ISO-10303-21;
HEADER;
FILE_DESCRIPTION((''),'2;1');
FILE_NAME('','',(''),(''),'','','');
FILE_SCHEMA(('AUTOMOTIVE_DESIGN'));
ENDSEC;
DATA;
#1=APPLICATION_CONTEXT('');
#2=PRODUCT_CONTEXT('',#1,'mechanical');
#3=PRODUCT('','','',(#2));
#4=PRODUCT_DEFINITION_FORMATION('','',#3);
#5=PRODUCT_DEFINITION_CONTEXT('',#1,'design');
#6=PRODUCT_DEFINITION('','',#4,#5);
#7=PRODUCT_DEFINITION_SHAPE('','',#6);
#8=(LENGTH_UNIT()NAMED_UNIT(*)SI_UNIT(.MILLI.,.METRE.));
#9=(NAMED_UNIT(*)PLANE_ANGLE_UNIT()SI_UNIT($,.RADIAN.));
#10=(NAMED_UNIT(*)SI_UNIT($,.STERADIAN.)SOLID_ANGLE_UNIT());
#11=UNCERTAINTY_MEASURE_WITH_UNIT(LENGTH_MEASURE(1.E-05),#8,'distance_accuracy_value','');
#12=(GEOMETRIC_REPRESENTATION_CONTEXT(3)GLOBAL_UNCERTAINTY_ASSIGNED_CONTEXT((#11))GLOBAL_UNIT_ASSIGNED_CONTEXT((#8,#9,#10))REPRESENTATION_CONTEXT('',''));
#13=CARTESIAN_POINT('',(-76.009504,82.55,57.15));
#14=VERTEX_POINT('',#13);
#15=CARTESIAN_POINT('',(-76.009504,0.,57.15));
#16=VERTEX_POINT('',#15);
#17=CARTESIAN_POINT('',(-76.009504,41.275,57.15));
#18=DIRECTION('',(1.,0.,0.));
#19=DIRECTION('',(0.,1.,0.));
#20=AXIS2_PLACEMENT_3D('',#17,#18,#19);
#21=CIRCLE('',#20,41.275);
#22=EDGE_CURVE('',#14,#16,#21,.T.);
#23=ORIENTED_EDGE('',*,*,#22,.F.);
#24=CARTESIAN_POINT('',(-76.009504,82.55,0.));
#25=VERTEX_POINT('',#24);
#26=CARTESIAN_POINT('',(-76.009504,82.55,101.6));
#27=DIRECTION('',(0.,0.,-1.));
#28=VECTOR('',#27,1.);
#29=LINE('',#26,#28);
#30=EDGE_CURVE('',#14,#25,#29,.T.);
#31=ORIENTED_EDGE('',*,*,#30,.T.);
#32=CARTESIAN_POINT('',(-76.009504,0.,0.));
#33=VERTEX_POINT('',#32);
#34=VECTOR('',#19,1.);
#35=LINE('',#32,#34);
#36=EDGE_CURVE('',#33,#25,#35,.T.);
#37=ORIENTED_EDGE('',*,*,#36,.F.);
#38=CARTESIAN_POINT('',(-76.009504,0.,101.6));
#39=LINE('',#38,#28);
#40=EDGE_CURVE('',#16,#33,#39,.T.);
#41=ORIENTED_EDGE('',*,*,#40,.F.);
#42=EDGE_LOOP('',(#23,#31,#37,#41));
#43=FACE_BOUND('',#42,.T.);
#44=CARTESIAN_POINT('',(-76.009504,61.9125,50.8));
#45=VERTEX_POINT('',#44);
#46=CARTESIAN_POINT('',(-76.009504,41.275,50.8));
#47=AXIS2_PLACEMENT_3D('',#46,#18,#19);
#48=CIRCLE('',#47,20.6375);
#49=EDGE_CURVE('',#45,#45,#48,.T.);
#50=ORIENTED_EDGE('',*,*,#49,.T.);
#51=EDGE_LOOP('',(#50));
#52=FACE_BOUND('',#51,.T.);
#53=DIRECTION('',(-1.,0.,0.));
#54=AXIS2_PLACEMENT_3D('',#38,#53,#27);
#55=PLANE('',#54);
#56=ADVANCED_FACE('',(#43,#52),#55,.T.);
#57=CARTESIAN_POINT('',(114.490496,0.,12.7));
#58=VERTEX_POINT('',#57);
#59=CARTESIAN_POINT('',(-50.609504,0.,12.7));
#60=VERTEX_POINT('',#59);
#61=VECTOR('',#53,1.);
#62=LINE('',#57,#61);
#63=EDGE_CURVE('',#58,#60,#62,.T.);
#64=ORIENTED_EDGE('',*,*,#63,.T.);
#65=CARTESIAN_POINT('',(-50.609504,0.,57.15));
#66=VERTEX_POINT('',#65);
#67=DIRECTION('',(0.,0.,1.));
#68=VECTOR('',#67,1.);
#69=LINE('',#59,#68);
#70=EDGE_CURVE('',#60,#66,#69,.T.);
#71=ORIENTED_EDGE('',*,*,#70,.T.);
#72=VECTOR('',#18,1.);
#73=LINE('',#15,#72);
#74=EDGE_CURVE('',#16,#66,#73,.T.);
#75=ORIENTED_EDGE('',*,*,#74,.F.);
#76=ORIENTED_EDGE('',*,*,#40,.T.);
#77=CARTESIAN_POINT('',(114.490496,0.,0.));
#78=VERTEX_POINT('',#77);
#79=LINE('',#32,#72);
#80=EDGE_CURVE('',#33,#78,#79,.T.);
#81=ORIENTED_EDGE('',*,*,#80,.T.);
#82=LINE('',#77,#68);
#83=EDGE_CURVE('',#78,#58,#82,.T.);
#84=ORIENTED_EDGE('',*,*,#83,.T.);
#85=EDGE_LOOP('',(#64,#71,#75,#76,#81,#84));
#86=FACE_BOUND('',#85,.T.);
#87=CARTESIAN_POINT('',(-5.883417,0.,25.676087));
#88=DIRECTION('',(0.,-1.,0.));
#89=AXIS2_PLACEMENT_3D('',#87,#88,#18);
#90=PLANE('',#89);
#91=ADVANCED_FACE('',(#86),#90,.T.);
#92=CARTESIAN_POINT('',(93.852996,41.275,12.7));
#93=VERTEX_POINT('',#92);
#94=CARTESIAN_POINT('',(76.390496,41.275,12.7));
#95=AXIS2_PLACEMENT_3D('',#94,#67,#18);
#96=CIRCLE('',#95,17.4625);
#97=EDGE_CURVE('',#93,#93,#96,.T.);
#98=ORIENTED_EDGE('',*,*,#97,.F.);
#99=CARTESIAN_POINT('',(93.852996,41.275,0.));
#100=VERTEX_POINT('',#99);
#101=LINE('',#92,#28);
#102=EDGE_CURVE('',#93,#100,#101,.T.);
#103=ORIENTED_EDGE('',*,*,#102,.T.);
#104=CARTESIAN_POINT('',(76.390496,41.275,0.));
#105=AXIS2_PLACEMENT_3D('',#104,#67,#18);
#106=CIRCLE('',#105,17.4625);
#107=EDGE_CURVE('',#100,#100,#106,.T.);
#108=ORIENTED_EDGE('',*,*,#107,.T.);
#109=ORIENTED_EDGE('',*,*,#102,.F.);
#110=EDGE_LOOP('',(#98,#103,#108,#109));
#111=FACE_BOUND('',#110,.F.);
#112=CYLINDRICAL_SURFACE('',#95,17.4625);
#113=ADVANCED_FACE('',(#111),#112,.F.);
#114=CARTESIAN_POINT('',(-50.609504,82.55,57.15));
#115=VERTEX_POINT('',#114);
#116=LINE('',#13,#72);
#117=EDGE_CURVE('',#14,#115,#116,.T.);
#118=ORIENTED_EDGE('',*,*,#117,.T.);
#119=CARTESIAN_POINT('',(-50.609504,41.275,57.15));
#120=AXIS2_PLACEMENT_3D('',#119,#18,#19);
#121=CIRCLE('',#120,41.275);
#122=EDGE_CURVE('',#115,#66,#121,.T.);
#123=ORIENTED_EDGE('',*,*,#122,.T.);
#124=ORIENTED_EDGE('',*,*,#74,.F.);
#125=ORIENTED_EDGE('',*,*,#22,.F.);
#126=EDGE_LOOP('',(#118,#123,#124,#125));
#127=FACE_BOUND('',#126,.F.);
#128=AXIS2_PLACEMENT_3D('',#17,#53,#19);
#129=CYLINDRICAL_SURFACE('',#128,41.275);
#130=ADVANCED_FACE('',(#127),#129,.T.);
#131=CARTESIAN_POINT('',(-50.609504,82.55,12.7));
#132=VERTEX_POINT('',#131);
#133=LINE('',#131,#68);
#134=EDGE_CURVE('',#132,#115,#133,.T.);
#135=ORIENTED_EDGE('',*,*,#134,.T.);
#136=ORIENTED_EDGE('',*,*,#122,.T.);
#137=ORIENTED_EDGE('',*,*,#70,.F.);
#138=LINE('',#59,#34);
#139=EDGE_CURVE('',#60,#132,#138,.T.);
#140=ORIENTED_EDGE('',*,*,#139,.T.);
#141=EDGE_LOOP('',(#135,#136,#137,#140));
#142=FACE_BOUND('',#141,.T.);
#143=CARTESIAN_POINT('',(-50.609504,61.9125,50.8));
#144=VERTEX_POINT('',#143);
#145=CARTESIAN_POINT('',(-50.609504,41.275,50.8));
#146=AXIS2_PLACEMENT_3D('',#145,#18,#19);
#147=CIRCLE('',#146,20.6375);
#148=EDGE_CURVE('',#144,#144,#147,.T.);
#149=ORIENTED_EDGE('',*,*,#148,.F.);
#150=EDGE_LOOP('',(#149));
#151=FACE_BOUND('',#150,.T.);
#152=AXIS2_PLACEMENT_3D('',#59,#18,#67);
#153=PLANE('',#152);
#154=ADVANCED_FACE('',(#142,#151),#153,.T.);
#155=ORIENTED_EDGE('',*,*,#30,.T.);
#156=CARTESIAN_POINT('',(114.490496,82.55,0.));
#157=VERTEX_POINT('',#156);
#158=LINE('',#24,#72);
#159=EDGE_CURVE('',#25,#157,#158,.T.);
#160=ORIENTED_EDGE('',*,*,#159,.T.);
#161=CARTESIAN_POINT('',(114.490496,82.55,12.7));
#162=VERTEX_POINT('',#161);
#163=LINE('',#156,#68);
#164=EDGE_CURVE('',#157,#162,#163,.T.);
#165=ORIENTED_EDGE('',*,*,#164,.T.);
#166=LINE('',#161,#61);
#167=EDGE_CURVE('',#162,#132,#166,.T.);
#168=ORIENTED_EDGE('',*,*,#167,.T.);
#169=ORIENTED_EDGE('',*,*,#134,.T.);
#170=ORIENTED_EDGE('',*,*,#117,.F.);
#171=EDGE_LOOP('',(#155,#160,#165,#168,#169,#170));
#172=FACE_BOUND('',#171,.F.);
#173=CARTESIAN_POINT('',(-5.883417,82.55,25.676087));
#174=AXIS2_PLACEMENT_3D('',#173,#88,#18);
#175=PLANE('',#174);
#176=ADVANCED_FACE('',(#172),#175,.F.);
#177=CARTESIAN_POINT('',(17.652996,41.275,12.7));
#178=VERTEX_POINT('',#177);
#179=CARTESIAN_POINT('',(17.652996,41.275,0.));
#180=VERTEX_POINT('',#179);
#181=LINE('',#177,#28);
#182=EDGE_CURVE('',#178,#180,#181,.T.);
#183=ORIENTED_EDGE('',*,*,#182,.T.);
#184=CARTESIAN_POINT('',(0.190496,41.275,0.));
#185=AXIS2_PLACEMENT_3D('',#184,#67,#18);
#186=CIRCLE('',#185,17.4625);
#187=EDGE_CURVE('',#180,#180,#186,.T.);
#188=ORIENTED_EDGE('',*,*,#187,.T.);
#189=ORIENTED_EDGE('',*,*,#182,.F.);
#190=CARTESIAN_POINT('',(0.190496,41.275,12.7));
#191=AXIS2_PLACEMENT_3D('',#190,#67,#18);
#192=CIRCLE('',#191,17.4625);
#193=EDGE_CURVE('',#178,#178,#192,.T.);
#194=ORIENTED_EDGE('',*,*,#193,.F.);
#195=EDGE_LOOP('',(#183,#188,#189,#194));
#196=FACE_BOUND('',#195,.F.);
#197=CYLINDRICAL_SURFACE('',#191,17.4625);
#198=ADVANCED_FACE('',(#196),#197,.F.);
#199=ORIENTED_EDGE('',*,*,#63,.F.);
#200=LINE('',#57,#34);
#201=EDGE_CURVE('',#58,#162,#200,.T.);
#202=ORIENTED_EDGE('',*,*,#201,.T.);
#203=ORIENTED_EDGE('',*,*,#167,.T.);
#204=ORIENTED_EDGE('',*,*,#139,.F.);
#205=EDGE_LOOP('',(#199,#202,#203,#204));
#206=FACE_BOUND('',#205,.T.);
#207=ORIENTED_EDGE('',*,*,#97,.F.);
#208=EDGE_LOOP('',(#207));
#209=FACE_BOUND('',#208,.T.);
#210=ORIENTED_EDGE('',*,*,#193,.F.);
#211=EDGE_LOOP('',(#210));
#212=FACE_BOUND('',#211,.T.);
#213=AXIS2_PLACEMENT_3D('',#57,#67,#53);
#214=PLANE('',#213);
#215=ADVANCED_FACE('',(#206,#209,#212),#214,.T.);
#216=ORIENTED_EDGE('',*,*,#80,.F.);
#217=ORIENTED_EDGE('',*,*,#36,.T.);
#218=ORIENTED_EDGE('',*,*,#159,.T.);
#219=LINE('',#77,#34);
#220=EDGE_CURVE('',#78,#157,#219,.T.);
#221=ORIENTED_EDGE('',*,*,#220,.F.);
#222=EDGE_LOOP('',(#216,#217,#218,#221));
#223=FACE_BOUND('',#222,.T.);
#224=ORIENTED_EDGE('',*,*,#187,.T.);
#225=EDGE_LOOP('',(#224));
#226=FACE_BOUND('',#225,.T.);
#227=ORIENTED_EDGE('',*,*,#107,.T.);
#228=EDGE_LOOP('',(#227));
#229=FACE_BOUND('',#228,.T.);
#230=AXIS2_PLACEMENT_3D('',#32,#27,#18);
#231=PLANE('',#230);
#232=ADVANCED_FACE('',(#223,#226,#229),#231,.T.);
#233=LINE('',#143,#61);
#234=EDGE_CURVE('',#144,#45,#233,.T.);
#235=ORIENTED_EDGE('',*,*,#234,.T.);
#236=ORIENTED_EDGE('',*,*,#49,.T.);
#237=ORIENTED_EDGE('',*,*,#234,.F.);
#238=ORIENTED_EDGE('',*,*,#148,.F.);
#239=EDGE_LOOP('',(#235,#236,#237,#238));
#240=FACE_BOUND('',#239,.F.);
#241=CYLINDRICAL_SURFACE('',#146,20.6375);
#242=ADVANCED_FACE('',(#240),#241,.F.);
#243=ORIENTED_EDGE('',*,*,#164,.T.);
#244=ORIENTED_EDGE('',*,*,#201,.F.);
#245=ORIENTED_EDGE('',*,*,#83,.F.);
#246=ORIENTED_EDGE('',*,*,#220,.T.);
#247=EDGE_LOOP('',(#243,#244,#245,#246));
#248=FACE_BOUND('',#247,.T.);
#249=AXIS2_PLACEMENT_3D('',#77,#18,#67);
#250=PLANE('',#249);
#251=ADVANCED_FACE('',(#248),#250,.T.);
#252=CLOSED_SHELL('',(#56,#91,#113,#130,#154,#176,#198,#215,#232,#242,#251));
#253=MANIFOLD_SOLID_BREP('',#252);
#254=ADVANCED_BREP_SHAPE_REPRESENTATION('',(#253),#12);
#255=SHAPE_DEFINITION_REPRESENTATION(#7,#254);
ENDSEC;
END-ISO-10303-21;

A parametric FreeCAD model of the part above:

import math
import FreeCAD as App
import Part
import Sketcher
from FreeCAD import Vector
Q = App.Units.Quantity

doc = App.newDocument("Part")
params = doc.addObject("Spreadsheet::Sheet", "Params")
for row, (alias, value) in enumerate([
    ("sketch1_width", "1 in"),
    ("sketch1_height", "4 in"),
    ("sketch1_width2", "7.5 in"),
    ("sketch1_height2", "0.5 in"),
    ("pad1_length", "3.25 in"),
    ("sketch2_diameter", "1.375 in"),
    ("pocket1_length", "1 in"),
    ("sketch3_radius", "1.625 in"),
    ("sketch3_height", "1.75 in"),
    ("pocket2_length", "1 in"),
    ("sketch4_diameter", "1.625 in"),
    ("pocket3_length", "2 in"),
], start=1):
    params.set(f"A{row}", alias)
    params.set(f"B{row}", "=" + value)
    params.setAlias(f"B{row}", alias)

body = doc.addObject("PartDesign::Body", "Body")

# Sketch on XZ plane
sketch1 = body.newObject("Sketcher::SketchObject", "Sketch")
sketch1.AttachmentSupport = (doc.getObject("XZ_Plane"), [""])
sketch1.MapMode = "FlatFace"
sketch1.addGeometry([
    Part.LineSegment(Vector(-76.009504, 101.6, 0), Vector(-76.009504, 0, 0)),  # 0
    Part.LineSegment(Vector(-76.009504, 0, 0), Vector(114.490496, 0, 0)),  # 1
    Part.LineSegment(Vector(114.490496, 0, 0), Vector(114.490496, 12.7, 0)),  # 2
    Part.LineSegment(Vector(114.490496, 12.7, 0), Vector(-50.609504, 12.7, 0)),  # 3
    Part.LineSegment(Vector(-50.609504, 12.7, 0), Vector(-50.609504, 101.6, 0)),  # 4
    Part.LineSegment(Vector(-50.609504, 101.6, 0), Vector(-76.009504, 101.6, 0)),  # 5
], False)
sketch1.addConstraint([
    Sketcher.Constraint("Coincident", 0, 2, 1, 1),
    Sketcher.Constraint("Coincident", 1, 2, 2, 1),
    Sketcher.Constraint("Coincident", 2, 2, 3, 1),
    Sketcher.Constraint("Coincident", 3, 2, 4, 1),
    Sketcher.Constraint("Coincident", 4, 2, 5, 1),
    Sketcher.Constraint("Coincident", 5, 2, 0, 1),
    Sketcher.Constraint("Vertical", 0),
    Sketcher.Constraint("Horizontal", 1),
    Sketcher.Constraint("Vertical", 2),
    Sketcher.Constraint("Horizontal", 3),
    Sketcher.Constraint("Vertical", 4),
    Sketcher.Constraint("Horizontal", 5),
    Sketcher.Constraint("PointOnObject", 0, 2, -1),
    Sketcher.Constraint("DistanceX", 5, 2, 5, 1, Q("1 in")),
    Sketcher.Constraint("DistanceY", 0, 2, 0, 1, Q("4 in")),
    Sketcher.Constraint("DistanceX", 1, 1, 1, 2, Q("7.5 in")),
    Sketcher.Constraint("DistanceY", 2, 1, 2, 2, Q("0.5 in")),
    Sketcher.Constraint("DistanceX", 0, 2, -1, 1, Q("2.9925002 in")),
])
sketch1.setExpression("Constraints[13]", "Params.sketch1_width")
sketch1.setExpression("Constraints[14]", "Params.sketch1_height")
sketch1.setExpression("Constraints[15]", "Params.sketch1_width2")
sketch1.setExpression("Constraints[16]", "Params.sketch1_height2")
pad1 = body.newObject("PartDesign::Pad", "Pad")
pad1.Profile = sketch1
pad1.setExpression("Length", "Params.pad1_length")
pad1.Reversed = True

# Sketch on XY plane
sketch2 = body.newObject("Sketcher::SketchObject", "Sketch001")
sketch2.AttachmentSupport = (doc.getObject("XY_Plane"), [""])
sketch2.MapMode = "FlatFace"
sketch2.AttachmentOffset = App.Placement(Vector(0, 0, 0.5 * 25.4), App.Rotation())
sketch2.addGeometry([
    Part.Circle(Vector(0.190496, 41.275, 0), Vector(0, 0, 1), 17.4625),
    Part.Circle(Vector(76.390496, 41.275, 0), Vector(0, 0, 1), 17.4625),
], False)
sketch2.addConstraint([
    Sketcher.Constraint("Equal", 0, 1),
    Sketcher.Constraint("Horizontal", 0, 3, 1, 3),
    Sketcher.Constraint("Diameter", 0, Q("1.375 in")),
    Sketcher.Constraint("DistanceX", 0, 3, 1, 3, Q("3 in")),
    Sketcher.Constraint("DistanceY", -1, 1, 0, 3, Q("1.625 in")),
    Sketcher.Constraint("DistanceX", -1, 1, 0, 3, Q("0.0074998 in")),
])
sketch2.setExpression("Constraints[2]", "Params.sketch2_diameter")
pocket1 = body.newObject("PartDesign::Pocket", "Pocket")
pocket1.Profile = sketch2
pocket1.setExpression("Length", "Params.pocket1_length")

# Sketch on YZ plane
sketch3 = body.newObject("Sketcher::SketchObject", "Sketch002")
sketch3.AttachmentSupport = (doc.getObject("YZ_Plane"), [""])
sketch3.MapMode = "FlatFace"
sketch3.AttachmentOffset = App.Placement(Vector(0, 0, -2.9925002 * 25.4), App.Rotation())
sketch3.addGeometry([
    Part.ArcOfCircle(Part.Circle(Vector(41.275, 57.15, 0), Vector(0, 0, 1), 41.275), math.radians(0), math.radians(180)),
    Part.LineSegment(Vector(0, 57.15, 0), Vector(0, 101.6, 0)),
    Part.LineSegment(Vector(0, 101.6, 0), Vector(82.55, 101.6, 0)),
    Part.LineSegment(Vector(82.55, 101.6, 0), Vector(82.55, 57.15, 0)),
], False)
sketch3.addConstraint([
    Sketcher.Constraint("Tangent", 0, 2, 1, 1),
    Sketcher.Constraint("Coincident", 1, 2, 2, 1),
    Sketcher.Constraint("Coincident", 2, 2, 3, 1),
    Sketcher.Constraint("Tangent", 3, 2, 0, 1),
    Sketcher.Constraint("Vertical", 1),
    Sketcher.Constraint("Horizontal", 2),
    Sketcher.Constraint("Vertical", 3),
    Sketcher.Constraint("PointOnObject", 0, 2, -2),
    Sketcher.Constraint("DistanceY", -1, 1, 1, 2, Q("4 in")),
    Sketcher.Constraint("Radius", 0, Q("1.625 in")),
    Sketcher.Constraint("DistanceY", 1, 1, 1, 2, Q("1.75 in")),
])
sketch3.setExpression("Constraints[9]", "Params.sketch3_radius")
sketch3.setExpression("Constraints[10]", "Params.sketch3_height")
pocket2 = body.newObject("PartDesign::Pocket", "Pocket001")
pocket2.Profile = sketch3
pocket2.setExpression("Length", "Params.pocket2_length")
pocket2.Reversed = True

# Sketch on YZ plane
sketch4 = body.newObject("Sketcher::SketchObject", "Sketch003")
sketch4.AttachmentSupport = (doc.getObject("YZ_Plane"), [""])
sketch4.MapMode = "FlatFace"
sketch4.AttachmentOffset = App.Placement(Vector(0, 0, -1.9925002 * 25.4), App.Rotation())
sketch4.addGeometry(Part.Circle(Vector(41.275, 50.8, 0), Vector(0, 0, 1), 20.6375), False)
sketch4.addConstraint([
    Sketcher.Constraint("Diameter", 0, Q("1.625 in")),
    Sketcher.Constraint("DistanceY", -1, 1, 0, 3, Q("2 in")),
    Sketcher.Constraint("DistanceX", -1, 1, 0, 3, Q("1.625 in")),
])
sketch4.setExpression("Constraints[0]", "Params.sketch4_diameter")
pocket3 = body.newObject("PartDesign::Pocket", "Pocket002")
pocket3.Profile = sketch4
pocket3.setExpression("Length", "Params.pocket3_length")

doc.recompute()
